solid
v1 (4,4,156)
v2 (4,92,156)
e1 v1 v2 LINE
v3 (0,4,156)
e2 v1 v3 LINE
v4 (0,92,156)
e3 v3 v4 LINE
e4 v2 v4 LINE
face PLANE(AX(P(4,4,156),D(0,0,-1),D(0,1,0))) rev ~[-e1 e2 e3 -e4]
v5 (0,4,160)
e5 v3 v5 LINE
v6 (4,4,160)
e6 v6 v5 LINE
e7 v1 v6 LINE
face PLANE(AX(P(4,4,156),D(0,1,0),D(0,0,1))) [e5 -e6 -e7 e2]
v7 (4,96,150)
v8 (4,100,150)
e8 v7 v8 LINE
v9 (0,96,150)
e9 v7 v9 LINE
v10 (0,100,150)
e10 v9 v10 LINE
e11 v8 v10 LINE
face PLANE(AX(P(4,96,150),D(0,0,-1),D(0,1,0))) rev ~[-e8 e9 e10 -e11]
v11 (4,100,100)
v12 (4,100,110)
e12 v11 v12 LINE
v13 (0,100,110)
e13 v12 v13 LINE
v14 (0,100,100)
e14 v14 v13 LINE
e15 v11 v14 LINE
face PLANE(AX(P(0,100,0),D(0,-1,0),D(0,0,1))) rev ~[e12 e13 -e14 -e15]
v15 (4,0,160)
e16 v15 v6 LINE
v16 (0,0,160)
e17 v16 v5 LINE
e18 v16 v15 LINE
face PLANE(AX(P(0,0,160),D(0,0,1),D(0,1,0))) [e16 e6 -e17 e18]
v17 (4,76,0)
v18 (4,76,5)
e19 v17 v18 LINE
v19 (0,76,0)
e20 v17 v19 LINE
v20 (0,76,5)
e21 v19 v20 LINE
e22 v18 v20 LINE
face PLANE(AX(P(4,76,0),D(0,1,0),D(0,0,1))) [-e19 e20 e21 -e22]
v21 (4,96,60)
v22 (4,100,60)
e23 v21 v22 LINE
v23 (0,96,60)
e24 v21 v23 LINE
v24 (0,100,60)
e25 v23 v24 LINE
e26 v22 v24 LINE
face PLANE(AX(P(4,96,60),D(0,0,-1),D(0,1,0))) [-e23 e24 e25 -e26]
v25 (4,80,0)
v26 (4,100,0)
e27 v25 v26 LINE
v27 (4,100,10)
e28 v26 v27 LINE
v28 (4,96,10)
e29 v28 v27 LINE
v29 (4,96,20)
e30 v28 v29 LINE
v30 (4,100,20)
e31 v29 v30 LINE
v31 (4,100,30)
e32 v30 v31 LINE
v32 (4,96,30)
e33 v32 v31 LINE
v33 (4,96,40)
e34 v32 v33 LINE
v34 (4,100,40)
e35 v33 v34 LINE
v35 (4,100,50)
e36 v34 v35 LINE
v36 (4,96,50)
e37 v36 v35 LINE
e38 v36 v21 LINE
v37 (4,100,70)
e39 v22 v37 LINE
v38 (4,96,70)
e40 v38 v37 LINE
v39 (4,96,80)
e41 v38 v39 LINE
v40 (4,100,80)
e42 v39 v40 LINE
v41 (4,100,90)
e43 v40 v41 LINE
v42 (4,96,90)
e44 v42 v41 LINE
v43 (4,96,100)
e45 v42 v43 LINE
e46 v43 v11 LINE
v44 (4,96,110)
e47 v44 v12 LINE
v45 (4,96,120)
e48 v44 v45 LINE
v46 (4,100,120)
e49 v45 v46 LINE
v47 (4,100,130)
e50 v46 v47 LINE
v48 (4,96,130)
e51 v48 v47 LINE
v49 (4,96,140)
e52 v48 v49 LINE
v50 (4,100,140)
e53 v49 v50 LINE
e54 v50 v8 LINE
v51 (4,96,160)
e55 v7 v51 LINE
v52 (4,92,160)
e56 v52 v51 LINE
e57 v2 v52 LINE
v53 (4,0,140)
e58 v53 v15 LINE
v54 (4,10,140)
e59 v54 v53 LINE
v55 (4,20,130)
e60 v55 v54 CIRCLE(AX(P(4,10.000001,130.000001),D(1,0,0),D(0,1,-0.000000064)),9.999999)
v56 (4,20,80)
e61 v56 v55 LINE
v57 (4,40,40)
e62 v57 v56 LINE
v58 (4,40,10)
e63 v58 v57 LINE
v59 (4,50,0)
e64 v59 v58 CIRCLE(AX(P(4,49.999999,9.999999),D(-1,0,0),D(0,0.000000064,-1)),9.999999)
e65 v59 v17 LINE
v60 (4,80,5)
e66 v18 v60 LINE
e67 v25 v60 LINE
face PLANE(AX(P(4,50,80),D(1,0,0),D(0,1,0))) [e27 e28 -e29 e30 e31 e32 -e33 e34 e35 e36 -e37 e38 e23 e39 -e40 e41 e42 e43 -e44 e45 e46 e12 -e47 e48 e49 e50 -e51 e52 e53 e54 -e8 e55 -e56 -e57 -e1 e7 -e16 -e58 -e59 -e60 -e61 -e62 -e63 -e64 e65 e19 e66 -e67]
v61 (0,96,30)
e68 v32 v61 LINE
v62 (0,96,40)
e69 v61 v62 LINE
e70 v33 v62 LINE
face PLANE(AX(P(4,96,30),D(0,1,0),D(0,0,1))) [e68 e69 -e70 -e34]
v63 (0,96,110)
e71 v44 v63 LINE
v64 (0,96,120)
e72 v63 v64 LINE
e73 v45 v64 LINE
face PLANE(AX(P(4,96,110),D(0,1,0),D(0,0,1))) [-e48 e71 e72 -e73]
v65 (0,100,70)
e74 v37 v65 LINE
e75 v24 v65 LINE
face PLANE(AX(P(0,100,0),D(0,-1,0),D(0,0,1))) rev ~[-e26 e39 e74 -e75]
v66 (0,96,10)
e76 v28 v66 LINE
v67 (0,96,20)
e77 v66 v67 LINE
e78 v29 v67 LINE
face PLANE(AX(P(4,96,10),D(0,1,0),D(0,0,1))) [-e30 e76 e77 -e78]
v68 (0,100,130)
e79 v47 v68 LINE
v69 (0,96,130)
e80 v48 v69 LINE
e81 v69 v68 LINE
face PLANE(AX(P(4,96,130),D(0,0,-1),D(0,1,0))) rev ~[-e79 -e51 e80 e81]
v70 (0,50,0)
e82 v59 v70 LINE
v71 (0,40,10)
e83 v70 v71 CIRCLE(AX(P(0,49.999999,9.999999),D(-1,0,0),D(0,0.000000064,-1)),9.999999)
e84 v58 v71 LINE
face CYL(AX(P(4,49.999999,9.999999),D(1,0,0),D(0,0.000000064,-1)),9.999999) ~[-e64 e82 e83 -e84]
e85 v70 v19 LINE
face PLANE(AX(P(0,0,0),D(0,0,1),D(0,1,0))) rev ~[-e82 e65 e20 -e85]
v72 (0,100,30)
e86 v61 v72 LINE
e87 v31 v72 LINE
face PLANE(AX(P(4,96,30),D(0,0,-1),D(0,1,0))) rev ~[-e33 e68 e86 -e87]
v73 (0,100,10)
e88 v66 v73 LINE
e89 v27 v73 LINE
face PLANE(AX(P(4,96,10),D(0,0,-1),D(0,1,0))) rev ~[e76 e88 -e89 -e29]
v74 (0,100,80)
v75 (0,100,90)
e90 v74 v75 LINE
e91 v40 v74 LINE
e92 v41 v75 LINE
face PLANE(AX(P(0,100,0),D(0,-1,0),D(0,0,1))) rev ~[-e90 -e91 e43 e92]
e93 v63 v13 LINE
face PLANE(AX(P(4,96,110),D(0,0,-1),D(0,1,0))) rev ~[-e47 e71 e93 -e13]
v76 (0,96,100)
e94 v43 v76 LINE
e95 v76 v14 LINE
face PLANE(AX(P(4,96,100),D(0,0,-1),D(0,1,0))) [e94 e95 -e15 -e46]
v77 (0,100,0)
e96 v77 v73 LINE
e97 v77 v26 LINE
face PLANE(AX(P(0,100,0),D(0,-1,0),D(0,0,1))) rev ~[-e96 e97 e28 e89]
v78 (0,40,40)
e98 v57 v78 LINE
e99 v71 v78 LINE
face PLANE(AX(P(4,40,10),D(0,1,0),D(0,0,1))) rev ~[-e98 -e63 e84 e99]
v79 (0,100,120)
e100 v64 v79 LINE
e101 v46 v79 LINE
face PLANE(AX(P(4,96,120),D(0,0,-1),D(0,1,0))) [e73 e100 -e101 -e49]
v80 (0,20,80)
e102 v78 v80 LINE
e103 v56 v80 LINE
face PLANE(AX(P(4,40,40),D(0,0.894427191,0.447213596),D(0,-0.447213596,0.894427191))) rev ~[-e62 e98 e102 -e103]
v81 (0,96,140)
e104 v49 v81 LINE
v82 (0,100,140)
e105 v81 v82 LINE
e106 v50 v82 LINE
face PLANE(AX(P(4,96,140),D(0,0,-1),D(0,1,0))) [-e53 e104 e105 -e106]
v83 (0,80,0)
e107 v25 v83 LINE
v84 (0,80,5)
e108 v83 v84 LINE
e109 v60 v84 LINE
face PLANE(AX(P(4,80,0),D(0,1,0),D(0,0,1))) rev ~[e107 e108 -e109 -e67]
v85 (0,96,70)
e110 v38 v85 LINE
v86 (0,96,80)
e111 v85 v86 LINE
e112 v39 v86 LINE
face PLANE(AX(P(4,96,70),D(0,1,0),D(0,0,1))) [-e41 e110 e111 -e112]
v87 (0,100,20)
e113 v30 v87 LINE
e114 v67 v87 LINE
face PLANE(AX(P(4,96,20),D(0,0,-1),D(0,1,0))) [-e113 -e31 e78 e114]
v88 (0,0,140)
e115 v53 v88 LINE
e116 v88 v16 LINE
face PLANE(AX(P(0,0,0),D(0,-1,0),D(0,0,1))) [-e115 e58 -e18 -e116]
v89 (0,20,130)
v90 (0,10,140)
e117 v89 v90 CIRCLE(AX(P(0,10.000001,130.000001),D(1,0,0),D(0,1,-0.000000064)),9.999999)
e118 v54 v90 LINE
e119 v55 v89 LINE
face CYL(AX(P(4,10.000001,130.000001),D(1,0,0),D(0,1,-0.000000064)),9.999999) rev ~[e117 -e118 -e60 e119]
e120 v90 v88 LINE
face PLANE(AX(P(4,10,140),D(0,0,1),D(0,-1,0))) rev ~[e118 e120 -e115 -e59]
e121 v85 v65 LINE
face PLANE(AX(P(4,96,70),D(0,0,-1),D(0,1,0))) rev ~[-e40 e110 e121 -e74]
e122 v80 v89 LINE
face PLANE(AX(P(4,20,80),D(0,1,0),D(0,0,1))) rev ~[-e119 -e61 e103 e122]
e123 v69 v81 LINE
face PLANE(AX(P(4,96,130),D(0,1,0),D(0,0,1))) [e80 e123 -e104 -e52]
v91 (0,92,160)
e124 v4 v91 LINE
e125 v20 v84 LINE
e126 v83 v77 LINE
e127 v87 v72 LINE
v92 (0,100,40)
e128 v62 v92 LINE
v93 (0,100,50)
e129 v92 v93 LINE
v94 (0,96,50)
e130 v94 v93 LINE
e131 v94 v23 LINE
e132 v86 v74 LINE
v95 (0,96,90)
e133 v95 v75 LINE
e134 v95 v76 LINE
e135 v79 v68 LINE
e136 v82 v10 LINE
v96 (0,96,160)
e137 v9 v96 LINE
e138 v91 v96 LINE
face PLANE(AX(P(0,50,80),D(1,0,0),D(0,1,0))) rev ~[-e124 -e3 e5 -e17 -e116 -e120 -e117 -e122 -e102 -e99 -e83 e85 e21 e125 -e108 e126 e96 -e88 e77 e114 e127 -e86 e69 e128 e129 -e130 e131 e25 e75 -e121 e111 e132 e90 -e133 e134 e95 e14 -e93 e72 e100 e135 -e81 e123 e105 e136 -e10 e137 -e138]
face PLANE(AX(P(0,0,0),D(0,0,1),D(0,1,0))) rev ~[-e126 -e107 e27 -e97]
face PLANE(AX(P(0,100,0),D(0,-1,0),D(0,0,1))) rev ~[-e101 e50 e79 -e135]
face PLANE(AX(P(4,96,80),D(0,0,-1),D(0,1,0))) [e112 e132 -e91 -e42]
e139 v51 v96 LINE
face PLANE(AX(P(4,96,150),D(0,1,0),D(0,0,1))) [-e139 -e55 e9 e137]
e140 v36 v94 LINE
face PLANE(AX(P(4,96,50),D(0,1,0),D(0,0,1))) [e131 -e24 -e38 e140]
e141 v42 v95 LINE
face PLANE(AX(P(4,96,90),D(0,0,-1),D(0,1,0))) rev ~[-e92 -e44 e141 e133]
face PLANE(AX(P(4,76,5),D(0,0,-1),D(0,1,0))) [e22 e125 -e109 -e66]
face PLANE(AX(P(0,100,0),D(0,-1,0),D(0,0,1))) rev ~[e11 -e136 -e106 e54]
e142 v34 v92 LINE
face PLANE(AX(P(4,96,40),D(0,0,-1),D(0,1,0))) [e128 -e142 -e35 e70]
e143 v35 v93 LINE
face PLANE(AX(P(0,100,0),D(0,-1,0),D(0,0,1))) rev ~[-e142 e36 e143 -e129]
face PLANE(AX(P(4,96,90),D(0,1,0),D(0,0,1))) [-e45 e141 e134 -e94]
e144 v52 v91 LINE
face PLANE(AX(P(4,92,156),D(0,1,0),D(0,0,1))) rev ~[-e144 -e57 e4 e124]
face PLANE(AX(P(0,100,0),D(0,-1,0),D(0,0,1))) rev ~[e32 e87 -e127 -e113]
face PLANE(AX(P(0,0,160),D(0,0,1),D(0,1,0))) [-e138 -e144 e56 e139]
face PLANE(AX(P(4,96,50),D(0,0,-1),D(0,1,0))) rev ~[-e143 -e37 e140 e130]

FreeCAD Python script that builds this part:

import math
import FreeCAD as App
import Part
import Sketcher

V = App.Vector


def add_polygon(sketch, points):
    """Adds a closed chain of lines whose ends are joined by coincident constraints."""
    first, n = sketch.GeometryCount, len(points)
    for a, b in zip(points, points[1:] + points[:1]):
        sketch.addGeometry(Part.LineSegment(App.Vector(*a, 0), App.Vector(*b, 0)), False)
    for i in range(n):
        sketch.addConstraint(Sketcher.Constraint("Coincident", first + i, 2, first + (i + 1) % n, 1))

doc = App.newDocument("Part")
body = doc.addObject("PartDesign::Body", "Body")

sketch1 = body.newObject("Sketcher::SketchObject", "Sketch")
sketch1.AttachmentSupport = (doc.getObject("YZ_Plane"), [""])
sketch1.MapMode = "FlatFace"
add_polygon(sketch1, [(0, 160), (0, 0), (100, 0), (100, 160)])
sketch1.addConstraint(Sketcher.Constraint("Vertical", 0))
sketch1.addConstraint(Sketcher.Constraint("Horizontal", 1))
sketch1.addConstraint(Sketcher.Constraint("Vertical", 2))
sketch1.addConstraint(Sketcher.Constraint("Horizontal", 3))
sketch1.addConstraint(Sketcher.Constraint("Coincident", 0, 2, -1, 1))
sketch1.addConstraint(Sketcher.Constraint("DistanceX", 1, 1, 1, 2, 100.0))
sketch1.addConstraint(Sketcher.Constraint("DistanceY", 0, 2, 0, 1, 160.0))
pad1 = body.newObject("PartDesign::Pad", "Pad")
pad1.Profile = sketch1
pad1.Length = 4

sketch2 = body.newObject("Sketcher::SketchObject", "Sketch001")
sketch2.AttachmentSupport = (doc.getObject("YZ_Plane"), [""])
sketch2.MapMode = "FlatFace"
sketch2.AttachmentOffset = App.Placement(V(0, 0, 4), App.Rotation())
add_polygon(sketch2, [(96, 160), (96, 150), (100, 150), (100, 160)])
add_polygon(sketch2, [(96, 140), (96, 130), (100, 130), (100, 140)])
add_polygon(sketch2, [(96, 120), (96, 110), (100, 110), (100, 120)])
add_polygon(sketch2, [(96, 100), (96, 90), (100, 90), (100, 100)])
add_polygon(sketch2, [(96, 80), (96, 70), (100, 70), (100, 80)])
add_polygon(sketch2, [(96, 60), (96, 50), (100, 50), (100, 60)])
add_polygon(sketch2, [(96, 40), (96, 30), (100, 30), (100, 40)])
add_polygon(sketch2, [(96, 20), (96, 10), (100, 10), (100, 20)])
sketch2.addConstraint(Sketcher.Constraint("Vertical", 0))
sketch2.addConstraint(Sketcher.Constraint("Horizontal", 1))
sketch2.addConstraint(Sketcher.Constraint("Vertical", 2))
sketch2.addConstraint(Sketcher.Constraint("Horizontal", 3))
sketch2.addConstraint(Sketcher.Constraint("Vertical", 4))
sketch2.addConstraint(Sketcher.Constraint("Horizontal", 5))
sketch2.addConstraint(Sketcher.Constraint("Vertical", 6))
sketch2.addConstraint(Sketcher.Constraint("Horizontal", 7))
sketch2.addConstraint(Sketcher.Constraint("Vertical", 8))
sketch2.addConstraint(Sketcher.Constraint("Horizontal", 9))
sketch2.addConstraint(Sketcher.Constraint("Vertical", 10))
sketch2.addConstraint(Sketcher.Constraint("Horizontal", 11))
sketch2.addConstraint(Sketcher.Constraint("Vertical", 12))
sketch2.addConstraint(Sketcher.Constraint("Horizontal", 13))
sketch2.addConstraint(Sketcher.Constraint("Vertical", 14))
sketch2.addConstraint(Sketcher.Constraint("Horizontal", 15))
sketch2.addConstraint(Sketcher.Constraint("Vertical", 16))
sketch2.addConstraint(Sketcher.Constraint("Horizontal", 17))
sketch2.addConstraint(Sketcher.Constraint("Vertical", 18))
sketch2.addConstraint(Sketcher.Constraint("Horizontal", 19))
sketch2.addConstraint(Sketcher.Constraint("Vertical", 20))
sketch2.addConstraint(Sketcher.Constraint("Horizontal", 21))
sketch2.addConstraint(Sketcher.Constraint("Vertical", 22))
sketch2.addConstraint(Sketcher.Constraint("Horizontal", 23))
sketch2.addConstraint(Sketcher.Constraint("Vertical", 24))
sketch2.addConstraint(Sketcher.Constraint("Horizontal", 25))
sketch2.addConstraint(Sketcher.Constraint("Vertical", 26))
sketch2.addConstraint(Sketcher.Constraint("Horizontal", 27))
sketch2.addConstraint(Sketcher.Constraint("Vertical", 28))
sketch2.addConstraint(Sketcher.Constraint("Horizontal", 29))
sketch2.addConstraint(Sketcher.Constraint("Vertical", 30))
sketch2.addConstraint(Sketcher.Constraint("Horizontal", 31))
sketch2.addConstraint(Sketcher.Constraint("Vertical", 3, 2, 4, 2))
sketch2.addConstraint(Sketcher.Constraint("Vertical", 2, 2, 5, 2))
sketch2.addConstraint(Sketcher.Constraint("Vertical", 7, 2, 8, 2))
sketch2.addConstraint(Sketcher.Constraint("Vertical", 6, 2, 9, 2))
sketch2.addConstraint(Sketcher.Constraint("Vertical", 11, 2, 12, 2))
sketch2.addConstraint(Sketcher.Constraint("Vertical", 10, 2, 13, 2))
sketch2.addConstraint(Sketcher.Constraint("Vertical", 15, 2, 16, 2))
sketch2.addConstraint(Sketcher.Constraint("Vertical", 14, 2, 17, 2))
sketch2.addConstraint(Sketcher.Constraint("Vertical", 19, 2, 20, 2))
sketch2.addConstraint(Sketcher.Constraint("Vertical", 18, 2, 21, 2))
sketch2.addConstraint(Sketcher.Constraint("Vertical", 23, 2, 24, 2))
sketch2.addConstraint(Sketcher.Constraint("Vertical", 22, 2, 25, 2))
sketch2.addConstraint(Sketcher.Constraint("Vertical", 27, 2, 28, 2))
sketch2.addConstraint(Sketcher.Constraint("Vertical", 26, 2, 29, 2))
sketch2.addConstraint(Sketcher.Constraint("Equal", 2, 4))
sketch2.addConstraint(Sketcher.Constraint("Equal", 6, 8))
sketch2.addConstraint(Sketcher.Constraint("Equal", 10, 12))
sketch2.addConstraint(Sketcher.Constraint("Equal", 14, 16))
sketch2.addConstraint(Sketcher.Constraint("Equal", 18, 20))
sketch2.addConstraint(Sketcher.Constraint("Equal", 22, 24))
sketch2.addConstraint(Sketcher.Constraint("Equal", 26, 28))
sketch2.addConstraint(Sketcher.Constraint("DistanceX", 1, 1, 1, 2, 4.0))
sketch2.addConstraint(Sketcher.Constraint("DistanceY", 0, 2, 0, 1, 10.0))
sketch2.addConstraint(Sketcher.Constraint("DistanceX", -1, 1, 0, 2, 96.0))
sketch2.addConstraint(Sketcher.Constraint("DistanceY", -1, 1, 0, 2, 150.0))
sketch2.addConstraint(Sketcher.Constraint("DistanceY", -1, 1, 4, 2, 130.0))
sketch2.addConstraint(Sketcher.Constraint("DistanceY", -1, 1, 8, 2, 110.0))
sketch2.addConstraint(Sketcher.Constraint("DistanceY", -1, 1, 12, 2, 90.0))
sketch2.addConstraint(Sketcher.Constraint("DistanceY", -1, 1, 16, 2, 70.0))
sketch2.addConstraint(Sketcher.Constraint("DistanceY", -1, 1, 20, 2, 50.0))
sketch2.addConstraint(Sketcher.Constraint("DistanceY", -1, 1, 24, 2, 30.0))
sketch2.addConstraint(Sketcher.Constraint("DistanceY", -1, 1, 28, 2, 10.0))
pocket1 = body.newObject("PartDesign::Pocket", "Pocket")
pocket1.Profile = sketch2
pocket1.Type = "ThroughAll"

sketch3 = body.newObject("Sketcher::SketchObject", "Sketch002")
sketch3.AttachmentSupport = (doc.getObject("YZ_Plane"), [""])
sketch3.MapMode = "FlatFace"
sketch3.AttachmentOffset = App.Placement(V(0, 0, 4), App.Rotation())
add_polygon(sketch3, [(76, 5), (76, 0), (80, 0), (80, 5)])
add_polygon(sketch3, [(4, 160), (4, 156), (92, 156), (92, 160)])
sketch3.addConstraint(Sketcher.Constraint("Vertical", 0))
sketch3.addConstraint(Sketcher.Constraint("Horizontal", 1))
sketch3.addConstraint(Sketcher.Constraint("Vertical", 2))
sketch3.addConstraint(Sketcher.Constraint("Horizontal", 3))
sketch3.addConstraint(Sketcher.Constraint("Vertical", 4))
sketch3.addConstraint(Sketcher.Constraint("Horizontal", 5))
sketch3.addConstraint(Sketcher.Constraint("Vertical", 6))
sketch3.addConstraint(Sketcher.Constraint("Horizontal", 7))
sketch3.addConstraint(Sketcher.Constraint("PointOnObject", 0, 2, -1))
sketch3.addConstraint(Sketcher.Constraint("Equal", 3, 4))
sketch3.addConstraint(Sketcher.Constraint("DistanceX", 1, 1, 1, 2, 4.0))
sketch3.addConstraint(Sketcher.Constraint("DistanceX", 5, 1, 5, 2, 88.0))
sketch3.addConstraint(Sketcher.Constraint("DistanceY", 0, 2, 0, 1, 5.0))
sketch3.addConstraint(Sketcher.Constraint("DistanceX", -1, 1, 0, 2, 76.0))
sketch3.addConstraint(Sketcher.Constraint("DistanceX", -1, 1, 4, 2, 4.0))
sketch3.addConstraint(Sketcher.Constraint("DistanceY", -1, 1, 4, 2, 156.0))
pocket2 = body.newObject("PartDesign::Pocket", "Pocket001")
pocket2.Profile = sketch3
pocket2.Type = "ThroughAll"

sketch4 = body.newObject("Sketcher::SketchObject", "Sketch003")
sketch4.AttachmentSupport = (doc.getObject("YZ_Plane"), [""])
sketch4.MapMode = "FlatFace"
sketch4.AttachmentOffset = App.Placement(V(0, 0, 4), App.Rotation())
sketch4.addGeometry(Part.LineSegment(V(10, 140, 0), V(0, 140, 0)), False)
sketch4.addGeometry(Part.LineSegment(V(0, 140, 0), V(0, 0, 0)), False)
sketch4.addGeometry(Part.LineSegment(V(0, 0, 0), V(50, 0, 0)), False)
sketch4.addGeometry(Part.ArcOfCircle(Part.Circle(V(50, 10, 0), V(0, 0, 1), 10), math.radians(180), math.radians(270)), False)
sketch4.addGeometry(Part.LineSegment(V(40, 10, 0), V(40, 40, 0)), False)
sketch4.addGeometry(Part.LineSegment(V(40, 40, 0), V(20, 80, 0)), False)
sketch4.addGeometry(Part.LineSegment(V(20, 80, 0), V(20, 130, 0)), False)
sketch4.addGeometry(Part.ArcOfCircle(Part.Circle(V(10, 130, 0), V(0, 0, 1), 10), math.radians(0), math.radians(90)), False)
sketch4.addConstraint(Sketcher.Constraint("Coincident", 0, 2, 1, 1))
sketch4.addConstraint(Sketcher.Constraint("Coincident", 1, 2, 2, 1))
sketch4.addConstraint(Sketcher.Constraint("Tangent", 2, 2, 3, 2))
sketch4.addConstraint(Sketcher.Constraint("Tangent", 3, 1, 4, 1))
sketch4.addConstraint(Sketcher.Constraint("Coincident", 4, 2, 5, 1))
sketch4.addConstraint(Sketcher.Constraint("Coincident", 5, 2, 6, 1))
sketch4.addConstraint(Sketcher.Constraint("Tangent", 6, 2, 7, 1))
sketch4.addConstraint(Sketcher.Constraint("Tangent", 7, 2, 0, 1))
sketch4.addConstraint(Sketcher.Constraint("Horizontal", 0))
sketch4.addConstraint(Sketcher.Constraint("Vertical", 1))
sketch4.addConstraint(Sketcher.Constraint("Horizontal", 2))
sketch4.addConstraint(Sketcher.Constraint("Vertical", 4))
sketch4.addConstraint(Sketcher.Constraint("Vertical", 6))
sketch4.addConstraint(Sketcher.Constraint("Coincident", 1, 2, -1, 1))
sketch4.addConstraint(Sketcher.Constraint("Equal", 3, 7))
sketch4.addConstraint(Sketcher.Constraint("Equal", 2, 6))
sketch4.addConstraint(Sketcher.Constraint("Radius", 3, 9.999999))
sketch4.addConstraint(Sketcher.Constraint("DistanceX", 0, 2, 0, 1, 10.0))
sketch4.addConstraint(Sketcher.Constraint("DistanceX", 2, 1, 2, 2, 50.0))
sketch4.addConstraint(Sketcher.Constraint("DistanceY", 1, 2, 1, 1, 140.0))
sketch4.addConstraint(Sketcher.Constraint("DistanceY", 4, 1, 4, 2, 30.0))
pocket3 = body.newObject("PartDesign::Pocket", "Pocket002")
pocket3.Profile = sketch4
pocket3.Type = "ThroughAll"

doc.recompute()
